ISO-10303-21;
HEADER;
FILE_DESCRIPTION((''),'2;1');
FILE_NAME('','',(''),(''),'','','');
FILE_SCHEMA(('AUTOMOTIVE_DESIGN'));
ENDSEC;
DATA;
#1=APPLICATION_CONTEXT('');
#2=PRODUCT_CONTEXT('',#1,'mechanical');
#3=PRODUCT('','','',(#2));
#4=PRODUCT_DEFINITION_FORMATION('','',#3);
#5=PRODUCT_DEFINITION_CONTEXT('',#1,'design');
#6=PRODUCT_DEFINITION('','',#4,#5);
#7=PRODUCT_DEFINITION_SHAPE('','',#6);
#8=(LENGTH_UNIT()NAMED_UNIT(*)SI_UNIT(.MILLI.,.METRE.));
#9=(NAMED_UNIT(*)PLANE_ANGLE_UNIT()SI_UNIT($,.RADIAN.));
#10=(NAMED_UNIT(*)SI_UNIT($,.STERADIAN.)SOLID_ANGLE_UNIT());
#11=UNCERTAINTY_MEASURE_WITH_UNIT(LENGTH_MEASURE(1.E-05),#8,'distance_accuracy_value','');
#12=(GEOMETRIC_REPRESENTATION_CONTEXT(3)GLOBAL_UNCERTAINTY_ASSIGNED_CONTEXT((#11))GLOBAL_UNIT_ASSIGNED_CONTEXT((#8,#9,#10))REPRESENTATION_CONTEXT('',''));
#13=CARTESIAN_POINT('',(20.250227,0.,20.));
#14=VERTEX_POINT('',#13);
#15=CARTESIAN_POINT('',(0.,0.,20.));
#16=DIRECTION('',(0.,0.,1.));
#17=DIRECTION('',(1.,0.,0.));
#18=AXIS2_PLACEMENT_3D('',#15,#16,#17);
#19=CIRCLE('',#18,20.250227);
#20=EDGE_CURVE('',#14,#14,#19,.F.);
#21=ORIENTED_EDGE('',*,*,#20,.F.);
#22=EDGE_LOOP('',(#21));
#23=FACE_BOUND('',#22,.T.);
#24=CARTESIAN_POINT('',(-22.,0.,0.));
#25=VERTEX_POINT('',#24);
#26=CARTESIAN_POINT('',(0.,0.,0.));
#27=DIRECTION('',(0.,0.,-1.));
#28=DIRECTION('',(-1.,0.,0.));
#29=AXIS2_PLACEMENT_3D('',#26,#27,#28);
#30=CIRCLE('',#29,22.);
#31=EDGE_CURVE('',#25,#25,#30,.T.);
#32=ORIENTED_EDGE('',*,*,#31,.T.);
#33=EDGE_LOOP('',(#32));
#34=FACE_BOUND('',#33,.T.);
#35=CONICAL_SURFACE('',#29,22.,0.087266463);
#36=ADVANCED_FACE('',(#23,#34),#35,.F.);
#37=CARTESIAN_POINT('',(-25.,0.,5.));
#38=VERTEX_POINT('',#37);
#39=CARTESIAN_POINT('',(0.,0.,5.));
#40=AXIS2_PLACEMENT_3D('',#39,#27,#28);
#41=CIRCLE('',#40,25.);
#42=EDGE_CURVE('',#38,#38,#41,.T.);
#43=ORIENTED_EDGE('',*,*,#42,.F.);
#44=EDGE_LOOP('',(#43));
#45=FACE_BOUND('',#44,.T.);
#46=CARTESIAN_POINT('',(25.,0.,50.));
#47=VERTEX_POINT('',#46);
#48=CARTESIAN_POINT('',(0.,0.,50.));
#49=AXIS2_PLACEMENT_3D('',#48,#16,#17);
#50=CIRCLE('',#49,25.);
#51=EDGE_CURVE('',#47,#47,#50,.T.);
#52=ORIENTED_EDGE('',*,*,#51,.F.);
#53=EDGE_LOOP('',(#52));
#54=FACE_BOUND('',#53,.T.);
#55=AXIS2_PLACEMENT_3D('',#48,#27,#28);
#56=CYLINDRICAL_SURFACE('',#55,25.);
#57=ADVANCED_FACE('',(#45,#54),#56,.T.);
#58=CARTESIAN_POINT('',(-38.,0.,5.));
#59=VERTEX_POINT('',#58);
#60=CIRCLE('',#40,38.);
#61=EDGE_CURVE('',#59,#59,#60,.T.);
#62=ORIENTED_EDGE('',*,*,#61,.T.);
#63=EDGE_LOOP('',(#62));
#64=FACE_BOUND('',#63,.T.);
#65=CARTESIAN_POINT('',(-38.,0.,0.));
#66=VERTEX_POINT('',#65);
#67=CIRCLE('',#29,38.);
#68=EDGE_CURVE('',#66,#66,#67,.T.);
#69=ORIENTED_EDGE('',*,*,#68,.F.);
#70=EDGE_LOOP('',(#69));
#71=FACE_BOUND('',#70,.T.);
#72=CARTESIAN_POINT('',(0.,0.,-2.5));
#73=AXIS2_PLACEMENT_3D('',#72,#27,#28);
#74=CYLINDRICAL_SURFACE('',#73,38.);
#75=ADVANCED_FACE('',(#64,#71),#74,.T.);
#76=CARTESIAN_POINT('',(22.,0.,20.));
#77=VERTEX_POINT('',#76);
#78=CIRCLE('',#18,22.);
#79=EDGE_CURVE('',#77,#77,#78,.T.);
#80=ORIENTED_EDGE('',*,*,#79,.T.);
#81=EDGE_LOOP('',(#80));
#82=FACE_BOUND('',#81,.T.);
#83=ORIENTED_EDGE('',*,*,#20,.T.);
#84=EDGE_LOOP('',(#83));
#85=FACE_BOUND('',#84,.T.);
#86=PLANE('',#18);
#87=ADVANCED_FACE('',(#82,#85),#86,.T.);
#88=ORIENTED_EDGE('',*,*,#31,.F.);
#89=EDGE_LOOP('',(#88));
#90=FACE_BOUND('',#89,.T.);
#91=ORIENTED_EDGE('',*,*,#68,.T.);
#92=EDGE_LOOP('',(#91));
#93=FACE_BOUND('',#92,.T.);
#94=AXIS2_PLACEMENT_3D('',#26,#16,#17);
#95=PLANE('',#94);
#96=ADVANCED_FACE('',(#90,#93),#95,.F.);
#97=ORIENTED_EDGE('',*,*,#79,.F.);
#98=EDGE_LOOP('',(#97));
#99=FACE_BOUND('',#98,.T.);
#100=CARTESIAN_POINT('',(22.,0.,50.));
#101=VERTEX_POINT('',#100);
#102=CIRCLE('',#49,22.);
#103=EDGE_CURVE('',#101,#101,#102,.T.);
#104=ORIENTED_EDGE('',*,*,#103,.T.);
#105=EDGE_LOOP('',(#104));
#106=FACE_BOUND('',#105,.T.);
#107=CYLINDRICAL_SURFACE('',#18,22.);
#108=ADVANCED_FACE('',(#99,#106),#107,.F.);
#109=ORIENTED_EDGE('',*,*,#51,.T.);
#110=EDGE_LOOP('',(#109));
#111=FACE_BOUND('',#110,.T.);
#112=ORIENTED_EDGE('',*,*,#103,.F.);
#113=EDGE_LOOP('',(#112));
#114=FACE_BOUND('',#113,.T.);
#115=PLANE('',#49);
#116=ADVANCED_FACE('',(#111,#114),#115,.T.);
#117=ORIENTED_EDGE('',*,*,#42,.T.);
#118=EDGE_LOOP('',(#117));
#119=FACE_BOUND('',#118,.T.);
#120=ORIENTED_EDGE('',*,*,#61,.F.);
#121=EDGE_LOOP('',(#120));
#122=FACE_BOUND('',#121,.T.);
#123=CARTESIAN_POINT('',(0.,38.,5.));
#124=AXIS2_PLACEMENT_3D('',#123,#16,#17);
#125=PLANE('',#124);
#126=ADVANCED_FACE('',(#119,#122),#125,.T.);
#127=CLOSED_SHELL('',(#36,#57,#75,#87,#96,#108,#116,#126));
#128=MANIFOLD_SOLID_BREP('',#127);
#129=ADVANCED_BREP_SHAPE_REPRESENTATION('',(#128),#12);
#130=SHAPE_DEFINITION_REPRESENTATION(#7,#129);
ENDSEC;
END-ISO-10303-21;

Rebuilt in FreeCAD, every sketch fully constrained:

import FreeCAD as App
import Part
import Sketcher
from FreeCAD import Vector
Q = App.Units.Quantity


def faces_at(feature, points):
    """Names of the faces that lie closest to the given points."""
    faces = feature.Shape.Faces
    near = lambda p: min(range(len(faces)), key=lambda i: faces[i].distToShape(Part.Vertex(*p))[0])
    return sorted({f"Face{near(p) + 1}" for p in points})


def add_polygon(sketch, points):
    """Adds a closed chain of lines whose ends are joined by coincident constraints."""
    first, n = sketch.GeometryCount, len(points)
    for a, b in zip(points, points[1:] + points[:1]):
        sketch.addGeometry(Part.LineSegment(App.Vector(*a, 0), App.Vector(*b, 0)), False)
    for i in range(n):
        sketch.addConstraint(Sketcher.Constraint("Coincident", first + i, 2, first + (i + 1) % n, 1))

doc = App.newDocument("Part")
body = doc.addObject("PartDesign::Body", "Body")

sketch1 = body.newObject("Sketcher::SketchObject", "Sketch")
sketch1.AttachmentSupport = (doc.getObject("XY_Plane"), [""])
sketch1.MapMode = "FlatFace"
sketch1.addGeometry(Part.Circle(Vector(0, 0, 0), Vector(0, 0, 1), 25), False)
sketch1.addConstraint([
    Sketcher.Constraint("Coincident", 0, 3, -1, 1),
    Sketcher.Constraint("Diameter", 0, Q("50 mm")),
])
pad1 = body.newObject("PartDesign::Pad", "Pad")
pad1.Profile = sketch1
pad1.Length = 50

sketch2 = body.newObject("Sketcher::SketchObject", "Sketch001")
sketch2.AttachmentSupport = (doc.getObject("YZ_Plane"), [""])
sketch2.MapMode = "FlatFace"
add_polygon(sketch2, [(38, 5), (25, 5), (25, 0), (38, 0)])
sketch2.addConstraint([
    Sketcher.Constraint("Horizontal", 0),
    Sketcher.Constraint("Vertical", 1),
    Sketcher.Constraint("Horizontal", 2),
    Sketcher.Constraint("Vertical", 3),
    Sketcher.Constraint("PointOnObject", 1, 2, -1),
    Sketcher.Constraint("DistanceX", 0, 2, 0, 1, Q("13 mm")),
    Sketcher.Constraint("DistanceY", 1, 2, 1, 1, Q("5 mm")),
    Sketcher.Constraint("DistanceX", -1, 1, 0, 2, Q("25 mm")),
])
revolution = body.newObject("PartDesign::Revolution", "Revolution")
revolution.Profile = sketch2
revolution.ReferenceAxis = (sketch2, ["V_Axis"])
revolution.Angle = 360
body2 = doc.addObject("PartDesign::Body", "Body001")

sketch3 = body2.newObject("Sketcher::SketchObject", "Sketch002")
sketch3.AttachmentSupport = (doc.getObject("XY_Plane001"), [""])
sketch3.MapMode = "FlatFace"
sketch3.addGeometry(Part.Circle(Vector(0, 0, 0), Vector(0, 0, 1), 22), False)
sketch3.addConstraint([
    Sketcher.Constraint("Coincident", 0, 3, -1, 1),
    Sketcher.Constraint("Diameter", 0, Q("44 mm")),
])
pad2 = body2.newObject("PartDesign::Pad", "Pad001")
pad2.Profile = sketch3
pad2.Length = 74.402997
doc.recompute()

draft = body2.newObject("PartDesign::Draft", "Draft")
draft.Base = (pad2, faces_at(pad2, [(22, 0, 37.201)]))
draft.NeutralPlane = (doc.getObject("XY_Plane001"), [""])
draft.Angle = 5
draft.Reversed = False
doc.recompute()

boolean = body.newObject("PartDesign::Boolean", "Boolean")
boolean.Type = "Cut"
boolean.addObjects([body2])

sketch4 = body.newObject("Sketcher::SketchObject", "Sketch003")
sketch4.AttachmentSupport = (doc.getObject("XY_Plane"), [""])
sketch4.MapMode = "FlatFace"
sketch4.AttachmentOffset = App.Placement(Vector(0, 0, 50), App.Rotation())
sketch4.addGeometry(Part.Circle(Vector(0, 0, 0), Vector(0, 0, 1), 22), False)
sketch4.addConstraint([
    Sketcher.Constraint("Coincident", 0, 3, -1, 1),
    Sketcher.Constraint("Diameter", 0, Q("44 mm")),
])
pocket1 = body.newObject("PartDesign::Pocket", "Pocket")
pocket1.Profile = sketch4
pocket1.Length = 30

doc.recompute()
